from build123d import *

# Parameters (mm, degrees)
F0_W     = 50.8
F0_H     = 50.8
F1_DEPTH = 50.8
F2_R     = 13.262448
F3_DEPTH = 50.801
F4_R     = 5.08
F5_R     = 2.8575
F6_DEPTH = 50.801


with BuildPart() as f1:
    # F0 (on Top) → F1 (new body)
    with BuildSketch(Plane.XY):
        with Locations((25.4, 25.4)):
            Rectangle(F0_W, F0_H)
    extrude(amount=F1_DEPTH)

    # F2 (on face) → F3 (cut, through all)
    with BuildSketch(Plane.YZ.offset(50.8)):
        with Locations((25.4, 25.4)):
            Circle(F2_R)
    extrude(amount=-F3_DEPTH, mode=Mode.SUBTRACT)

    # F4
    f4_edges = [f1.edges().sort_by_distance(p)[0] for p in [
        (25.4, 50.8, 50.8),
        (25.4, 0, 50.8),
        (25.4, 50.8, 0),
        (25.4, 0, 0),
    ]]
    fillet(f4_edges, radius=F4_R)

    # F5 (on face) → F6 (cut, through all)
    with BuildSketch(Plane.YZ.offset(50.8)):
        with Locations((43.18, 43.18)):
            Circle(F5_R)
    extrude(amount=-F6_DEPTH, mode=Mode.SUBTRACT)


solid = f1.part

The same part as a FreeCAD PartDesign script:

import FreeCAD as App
import Part
import Sketcher
from FreeCAD import Vector
Q = App.Units.Quantity


def edges_at(feature, points):
    """Names of the edges that pass closest to the given points."""
    edges = feature.Shape.Edges
    near = lambda p: min(range(len(edges)), key=lambda i: edges[i].distToShape(Part.Vertex(*p))[0])
    return sorted({f"Edge{near(p) + 1}" for p in points})


def add_polygon(sketch, points):
    """Adds a closed chain of lines whose ends are joined by coincident constraints."""
    first, n = sketch.GeometryCount, len(points)
    for a, b in zip(points, points[1:] + points[:1]):
        sketch.addGeometry(Part.LineSegment(App.Vector(*a, 0), App.Vector(*b, 0)), False)
    for i in range(n):
        sketch.addConstraint(Sketcher.Constraint("Coincident", first + i, 2, first + (i + 1) % n, 1))

doc = App.newDocument("Part")
body = doc.addObject("PartDesign::Body", "Body")

# Sketch on XY plane
sketch1 = body.newObject("Sketcher::SketchObject", "Sketch")
sketch1.AttachmentSupport = (doc.getObject("XY_Plane"), [""])
sketch1.MapMode = "FlatFace"
add_polygon(sketch1, [(0, 51), (0, 0), (51, 0), (51, 51)])  # lines 0-3
sketch1.addConstraint(Sketcher.Constraint("Vertical", 0))
sketch1.addConstraint(Sketcher.Constraint("Horizontal", 1))
sketch1.addConstraint(Sketcher.Constraint("Vertical", 2))
sketch1.addConstraint(Sketcher.Constraint("Horizontal", 3))
sketch1.addConstraint(Sketcher.Constraint("Coincident", 0, 2, -1, 1))
sketch1.addConstraint(Sketcher.Constraint("Equal", 3, 0))
sketch1.addConstraint(Sketcher.Constraint("DistanceX", 1, 1, 1, 2, Q("2 in")))
pad1 = body.newObject("PartDesign::Pad", "Pad")
pad1.Profile = sketch1
pad1.Length = Q("2 in")

# Sketch on YZ plane
sketch2 = body.newObject("Sketcher::SketchObject", "Sketch001")
sketch2.AttachmentSupport = (doc.getObject("YZ_Plane"), [""])
sketch2.MapMode = "FlatFace"
sketch2.AttachmentOffset = App.Placement(Vector(0, 0, 2 * 25.4), App.Rotation())
sketch2.addGeometry(Part.Circle(Vector(25, 25, 0), Vector(0, 0, 1), 13), False)
sketch2.addConstraint(Sketcher.Constraint("DistanceX", -1, 1, 0, 3, Q("1 in")))
sketch2.addConstraint(Sketcher.Constraint("DistanceY", -1, 1, 0, 3, Q("1 in")))
sketch2.addConstraint(Sketcher.Constraint("Diameter", 0, 26.524896))
pocket1 = body.newObject("PartDesign::Pocket", "Pocket")
pocket1.Profile = sketch2
pocket1.Type = "ThroughAll"
doc.recompute()

fillet = body.newObject("PartDesign::Fillet", "Fillet")
fillet.Base = (pocket1, edges_at(pocket1, [
    (25.4, 50.8, 50.8),
    (25.4, 0, 50.8),
    (25.4, 50.8, 0),
    (25.4, 0, 0),
]))
fillet.Radius = Q("0.2 in")

# Sketch on YZ plane
sketch3 = body.newObject("Sketcher::SketchObject", "Sketch002")
sketch3.AttachmentSupport = (doc.getObject("YZ_Plane"), [""])
sketch3.MapMode = "FlatFace"
sketch3.AttachmentOffset = App.Placement(Vector(0, 0, 2 * 25.4), App.Rotation())
sketch3.addGeometry(Part.Circle(Vector(43.2, 43.2, 0), Vector(0, 0, 1), 2.9), False)
sketch3.addConstraint(Sketcher.Constraint("Diameter", 0, Q("0.225 in")))
sketch3.addConstraint(Sketcher.Constraint("DistanceX", -1, 1, 0, 3, Q("1.7 in")))
sketch3.addConstraint(Sketcher.Constraint("DistanceY", -1, 1, 0, 3, Q("1.7 in")))
pocket2 = body.newObject("PartDesign::Pocket", "Pocket001")
pocket2.Profile = sketch3
pocket2.Type = "ThroughAll"

doc.recompute()
